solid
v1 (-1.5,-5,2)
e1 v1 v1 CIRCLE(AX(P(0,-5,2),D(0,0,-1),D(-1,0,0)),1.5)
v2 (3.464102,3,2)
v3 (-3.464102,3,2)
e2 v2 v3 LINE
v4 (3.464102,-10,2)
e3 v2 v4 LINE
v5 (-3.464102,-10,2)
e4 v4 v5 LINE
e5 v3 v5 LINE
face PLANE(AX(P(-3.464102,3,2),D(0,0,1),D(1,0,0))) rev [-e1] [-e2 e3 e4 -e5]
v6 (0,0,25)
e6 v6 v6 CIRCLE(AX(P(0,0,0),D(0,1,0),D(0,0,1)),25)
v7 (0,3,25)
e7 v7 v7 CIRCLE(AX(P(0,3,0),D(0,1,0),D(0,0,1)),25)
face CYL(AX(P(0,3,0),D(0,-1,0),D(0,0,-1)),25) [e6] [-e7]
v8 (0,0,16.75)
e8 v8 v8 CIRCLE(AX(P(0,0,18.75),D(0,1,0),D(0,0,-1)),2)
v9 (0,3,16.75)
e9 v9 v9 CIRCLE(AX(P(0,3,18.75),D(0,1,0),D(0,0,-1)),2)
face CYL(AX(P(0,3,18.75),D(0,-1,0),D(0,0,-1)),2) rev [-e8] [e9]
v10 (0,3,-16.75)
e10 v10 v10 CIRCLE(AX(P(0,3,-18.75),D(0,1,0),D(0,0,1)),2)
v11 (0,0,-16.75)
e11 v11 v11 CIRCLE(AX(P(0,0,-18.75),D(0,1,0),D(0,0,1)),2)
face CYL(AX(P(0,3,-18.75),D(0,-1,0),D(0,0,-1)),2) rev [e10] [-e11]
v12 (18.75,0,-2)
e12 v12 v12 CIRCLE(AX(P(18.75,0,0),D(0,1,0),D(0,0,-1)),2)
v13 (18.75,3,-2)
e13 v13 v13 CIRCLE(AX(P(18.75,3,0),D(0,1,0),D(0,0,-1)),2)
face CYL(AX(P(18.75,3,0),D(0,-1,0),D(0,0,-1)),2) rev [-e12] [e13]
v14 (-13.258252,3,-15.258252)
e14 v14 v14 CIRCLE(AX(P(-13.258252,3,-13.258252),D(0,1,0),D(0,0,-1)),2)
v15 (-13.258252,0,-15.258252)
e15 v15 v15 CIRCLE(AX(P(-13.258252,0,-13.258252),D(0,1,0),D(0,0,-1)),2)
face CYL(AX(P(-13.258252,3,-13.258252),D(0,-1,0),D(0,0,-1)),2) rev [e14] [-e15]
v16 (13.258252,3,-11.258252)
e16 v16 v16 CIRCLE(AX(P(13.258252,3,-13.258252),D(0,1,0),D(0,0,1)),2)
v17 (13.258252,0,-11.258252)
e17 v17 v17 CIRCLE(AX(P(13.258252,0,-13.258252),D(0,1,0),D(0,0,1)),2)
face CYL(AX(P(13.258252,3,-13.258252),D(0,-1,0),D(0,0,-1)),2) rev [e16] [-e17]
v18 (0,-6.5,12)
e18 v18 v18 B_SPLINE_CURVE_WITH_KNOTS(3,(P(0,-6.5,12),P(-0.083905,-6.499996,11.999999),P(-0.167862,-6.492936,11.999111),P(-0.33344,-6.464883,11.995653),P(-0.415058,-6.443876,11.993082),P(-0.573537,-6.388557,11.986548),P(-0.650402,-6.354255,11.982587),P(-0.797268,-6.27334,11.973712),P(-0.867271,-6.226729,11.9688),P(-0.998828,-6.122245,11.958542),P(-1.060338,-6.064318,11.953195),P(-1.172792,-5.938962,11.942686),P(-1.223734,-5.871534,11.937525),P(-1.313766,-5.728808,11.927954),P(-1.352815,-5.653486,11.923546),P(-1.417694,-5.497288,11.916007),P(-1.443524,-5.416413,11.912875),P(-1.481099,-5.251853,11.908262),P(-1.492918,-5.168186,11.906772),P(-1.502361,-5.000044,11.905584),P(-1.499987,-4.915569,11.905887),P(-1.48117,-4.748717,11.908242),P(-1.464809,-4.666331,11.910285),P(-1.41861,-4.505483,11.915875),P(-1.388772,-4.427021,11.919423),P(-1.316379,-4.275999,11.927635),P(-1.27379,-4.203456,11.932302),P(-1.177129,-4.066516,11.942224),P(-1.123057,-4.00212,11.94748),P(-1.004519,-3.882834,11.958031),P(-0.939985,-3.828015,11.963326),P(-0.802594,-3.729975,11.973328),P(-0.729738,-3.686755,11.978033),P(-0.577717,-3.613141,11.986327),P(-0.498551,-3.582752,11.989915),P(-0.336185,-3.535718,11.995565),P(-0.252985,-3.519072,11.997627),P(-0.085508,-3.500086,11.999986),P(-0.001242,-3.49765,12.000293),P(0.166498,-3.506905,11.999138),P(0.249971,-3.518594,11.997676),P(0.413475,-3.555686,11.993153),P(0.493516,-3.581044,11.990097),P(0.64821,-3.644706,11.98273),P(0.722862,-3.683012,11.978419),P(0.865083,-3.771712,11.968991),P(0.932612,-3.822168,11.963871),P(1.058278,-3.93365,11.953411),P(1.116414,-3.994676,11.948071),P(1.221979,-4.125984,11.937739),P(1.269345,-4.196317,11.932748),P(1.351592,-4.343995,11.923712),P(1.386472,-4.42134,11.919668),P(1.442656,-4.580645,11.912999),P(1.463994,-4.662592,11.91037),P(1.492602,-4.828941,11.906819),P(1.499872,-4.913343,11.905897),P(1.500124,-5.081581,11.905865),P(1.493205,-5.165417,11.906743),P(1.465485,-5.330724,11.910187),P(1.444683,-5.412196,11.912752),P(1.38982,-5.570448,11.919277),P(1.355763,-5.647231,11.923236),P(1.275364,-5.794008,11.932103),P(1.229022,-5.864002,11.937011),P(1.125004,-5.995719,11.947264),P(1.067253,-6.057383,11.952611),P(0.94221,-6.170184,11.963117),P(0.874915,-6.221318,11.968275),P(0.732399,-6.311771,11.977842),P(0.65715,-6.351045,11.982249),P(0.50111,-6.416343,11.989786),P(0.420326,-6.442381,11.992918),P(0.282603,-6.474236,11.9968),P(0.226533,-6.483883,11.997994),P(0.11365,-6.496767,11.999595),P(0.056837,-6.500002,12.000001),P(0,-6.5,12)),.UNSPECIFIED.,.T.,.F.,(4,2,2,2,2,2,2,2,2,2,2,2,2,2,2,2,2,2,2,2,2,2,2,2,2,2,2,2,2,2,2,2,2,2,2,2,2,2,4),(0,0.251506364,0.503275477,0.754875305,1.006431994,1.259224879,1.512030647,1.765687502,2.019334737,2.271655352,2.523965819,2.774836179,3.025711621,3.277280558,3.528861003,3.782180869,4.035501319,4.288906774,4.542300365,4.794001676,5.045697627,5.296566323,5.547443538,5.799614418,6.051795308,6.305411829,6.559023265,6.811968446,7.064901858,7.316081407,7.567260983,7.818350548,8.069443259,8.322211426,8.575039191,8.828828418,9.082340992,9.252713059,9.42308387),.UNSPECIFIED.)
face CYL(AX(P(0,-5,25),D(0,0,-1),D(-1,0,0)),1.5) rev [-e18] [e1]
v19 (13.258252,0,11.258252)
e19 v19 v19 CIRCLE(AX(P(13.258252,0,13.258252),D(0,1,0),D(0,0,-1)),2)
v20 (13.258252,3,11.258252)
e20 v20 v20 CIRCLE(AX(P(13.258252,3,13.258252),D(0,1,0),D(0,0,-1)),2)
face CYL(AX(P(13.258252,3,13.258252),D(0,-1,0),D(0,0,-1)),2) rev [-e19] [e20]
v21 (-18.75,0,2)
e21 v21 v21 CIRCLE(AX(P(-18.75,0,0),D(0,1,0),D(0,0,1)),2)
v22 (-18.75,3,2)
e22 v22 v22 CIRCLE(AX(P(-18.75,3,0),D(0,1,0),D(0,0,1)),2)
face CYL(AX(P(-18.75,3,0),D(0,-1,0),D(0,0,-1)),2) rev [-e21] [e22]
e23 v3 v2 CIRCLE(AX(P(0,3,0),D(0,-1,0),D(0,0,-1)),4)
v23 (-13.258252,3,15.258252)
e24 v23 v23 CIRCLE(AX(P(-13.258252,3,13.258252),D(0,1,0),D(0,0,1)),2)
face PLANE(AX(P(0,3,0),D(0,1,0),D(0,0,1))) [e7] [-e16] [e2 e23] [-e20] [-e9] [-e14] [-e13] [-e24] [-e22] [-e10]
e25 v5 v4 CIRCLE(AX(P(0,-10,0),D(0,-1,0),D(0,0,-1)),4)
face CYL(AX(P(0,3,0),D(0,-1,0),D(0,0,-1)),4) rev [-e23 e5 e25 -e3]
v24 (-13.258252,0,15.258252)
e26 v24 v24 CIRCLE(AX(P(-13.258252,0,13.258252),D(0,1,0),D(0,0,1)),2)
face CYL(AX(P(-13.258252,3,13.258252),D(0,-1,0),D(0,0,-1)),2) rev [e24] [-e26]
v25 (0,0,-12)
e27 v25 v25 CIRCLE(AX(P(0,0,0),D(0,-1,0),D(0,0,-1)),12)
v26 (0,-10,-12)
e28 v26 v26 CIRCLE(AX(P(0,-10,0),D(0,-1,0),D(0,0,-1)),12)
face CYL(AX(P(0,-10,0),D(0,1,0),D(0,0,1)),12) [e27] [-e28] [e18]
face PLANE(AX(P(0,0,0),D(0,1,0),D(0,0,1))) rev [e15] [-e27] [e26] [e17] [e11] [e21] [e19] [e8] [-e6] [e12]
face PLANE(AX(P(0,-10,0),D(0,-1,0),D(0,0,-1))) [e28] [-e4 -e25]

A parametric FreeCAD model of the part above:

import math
import FreeCAD as App
import Part
import Sketcher
from FreeCAD import Vector

doc = App.newDocument("Part")
body = doc.addObject("PartDesign::Body", "Body")

# Sketch on XZ plane
sketch1 = body.newObject("Sketcher::SketchObject", "Sketch")
sketch1.AttachmentSupport = (doc.getObject("XZ_Plane"), [""])
sketch1.MapMode = "FlatFace"
sketch1.addGeometry([
    Part.Circle(Vector(0, 0, 0), Vector(0, 0, 1), 25),  # 0
    Part.Circle(Vector(-13.3, -13.3, 0), Vector(0, 0, 1), 2),  # 1
    Part.Circle(Vector(0, -18.8, 0), Vector(0, 0, 1), 2),  # 2
    Part.Circle(Vector(-18.8, 0, 0), Vector(0, 0, 1), 2),  # 3
    Part.Circle(Vector(-13.3, 13.3, 0), Vector(0, 0, 1), 2),  # 4
    Part.Circle(Vector(13.3, -13.3, 0), Vector(0, 0, 1), 2),  # 5
    Part.Circle(Vector(18.8, 0, 0), Vector(0, 0, 1), 2),  # 6
    Part.Circle(Vector(0, 18.8, 0), Vector(0, 0, 1), 2),  # 7
    Part.Circle(Vector(13.3, 13.3, 0), Vector(0, 0, 1), 2),  # 8
], False)
sketch1.addConstraint([
    Sketcher.Constraint("Coincident", 0, 3, -1, 1),
    Sketcher.Constraint("Equal", 1, 2),
    Sketcher.Constraint("Equal", 2, 3),
    Sketcher.Constraint("Equal", 3, 4),
    Sketcher.Constraint("Equal", 4, 5),
    Sketcher.Constraint("Equal", 5, 6),
    Sketcher.Constraint("Equal", 6, 7),
    Sketcher.Constraint("Equal", 7, 8),
    Sketcher.Constraint("Symmetric", 4, 3, 5, 3, -1, 1),
    Sketcher.Constraint("Symmetric", 3, 3, 6, 3, -1, 1),
    Sketcher.Constraint("Symmetric", 2, 3, 7, 3, -1, 1),
    Sketcher.Constraint("Symmetric", 1, 3, 8, 3, -1, 1),
    Sketcher.Constraint("Symmetric", 1, 3, 5, 3, -2),
    Sketcher.Constraint("PointOnObject", 2, 3, -2),
    Sketcher.Constraint("PointOnObject", 3, 3, -1),
    Sketcher.Constraint("Diameter", 0, 50.0),
    Sketcher.Constraint("Diameter", 1, 4.0),
    Sketcher.Constraint("DistanceY", 2, 3, -1, 1, 18.75),
    Sketcher.Constraint("DistanceX", 3, 3, -1, 1, 18.75),
    Sketcher.Constraint("DistanceX", 1, 3, -1, 1, 13.258252),
    Sketcher.Constraint("DistanceY", 1, 3, -1, 1, 13.258252),
])
pad1 = body.newObject("PartDesign::Pad", "Pad")
pad1.Profile = sketch1
pad1.Length = 3
pad1.Reversed = True

# Sketch on XZ plane
sketch2 = body.newObject("Sketcher::SketchObject", "Sketch001")
sketch2.AttachmentSupport = (doc.getObject("XZ_Plane"), [""])
sketch2.MapMode = "FlatFace"
sketch2.addGeometry(Part.Circle(Vector(0, 0, 0), Vector(0, 0, 1), 12), False)
sketch2.addConstraint([
    Sketcher.Constraint("Coincident", 0, 3, -1, 1),
    Sketcher.Constraint("Diameter", 0, 24.0),
])
pad2 = body.newObject("PartDesign::Pad", "Pad001")
pad2.Profile = sketch2
pad2.Length = 10

# Sketch on XZ plane
sketch3 = body.newObject("Sketcher::SketchObject", "Sketch002")
sketch3.AttachmentSupport = (doc.getObject("XZ_Plane"), [""])
sketch3.MapMode = "FlatFace"
sketch3.AttachmentOffset = App.Placement(Vector(0, 0, 10), App.Rotation())
sketch3.addGeometry([
    Part.LineSegment(Vector(3.5, 2, 0), Vector(-3.5, 2, 0)),
    Part.ArcOfCircle(Part.Circle(Vector(0, 0, 0), Vector(0, 0, 1), 4), math.radians(150), math.radians(390)),
], False)
sketch3.addConstraint([
    Sketcher.Constraint("Coincident", 0, 1, 1, 2),
    Sketcher.Constraint("Coincident", 1, 1, 0, 2),
    Sketcher.Constraint("Horizontal", 0),
    Sketcher.Constraint("Coincident", 1, 3, -1, 1),
    Sketcher.Constraint("Radius", 1, 4.0),
    Sketcher.Constraint("DistanceY", -1, 1, 0, 1, 2.0),
])
pocket1 = body.newObject("PartDesign::Pocket", "Pocket")
pocket1.Profile = sketch3
pocket1.Type = "ThroughAll"

# Sketch on XY plane
sketch4 = body.newObject("Sketcher::SketchObject", "Sketch003")
sketch4.AttachmentSupport = (doc.getObject("XY_Plane"), [""])
sketch4.MapMode = "FlatFace"
sketch4.AttachmentOffset = App.Placement(Vector(0, 0, 2), App.Rotation())
sketch4.addGeometry(Part.Circle(Vector(0, -5, 0), Vector(0, 0, 1), 1.5), False)
sketch4.addConstraint([
    Sketcher.Constraint("PointOnObject", 0, 3, -2),
    Sketcher.Constraint("Diameter", 0, 3.0),
    Sketcher.Constraint("DistanceY", 0, 3, -1, 1, 5.0),
])
pocket2 = body.newObject("PartDesign::Pocket", "Pocket001")
pocket2.Profile = sketch4
pocket2.Type = "ThroughAll"
pocket2.Reversed = True

doc.recompute()
